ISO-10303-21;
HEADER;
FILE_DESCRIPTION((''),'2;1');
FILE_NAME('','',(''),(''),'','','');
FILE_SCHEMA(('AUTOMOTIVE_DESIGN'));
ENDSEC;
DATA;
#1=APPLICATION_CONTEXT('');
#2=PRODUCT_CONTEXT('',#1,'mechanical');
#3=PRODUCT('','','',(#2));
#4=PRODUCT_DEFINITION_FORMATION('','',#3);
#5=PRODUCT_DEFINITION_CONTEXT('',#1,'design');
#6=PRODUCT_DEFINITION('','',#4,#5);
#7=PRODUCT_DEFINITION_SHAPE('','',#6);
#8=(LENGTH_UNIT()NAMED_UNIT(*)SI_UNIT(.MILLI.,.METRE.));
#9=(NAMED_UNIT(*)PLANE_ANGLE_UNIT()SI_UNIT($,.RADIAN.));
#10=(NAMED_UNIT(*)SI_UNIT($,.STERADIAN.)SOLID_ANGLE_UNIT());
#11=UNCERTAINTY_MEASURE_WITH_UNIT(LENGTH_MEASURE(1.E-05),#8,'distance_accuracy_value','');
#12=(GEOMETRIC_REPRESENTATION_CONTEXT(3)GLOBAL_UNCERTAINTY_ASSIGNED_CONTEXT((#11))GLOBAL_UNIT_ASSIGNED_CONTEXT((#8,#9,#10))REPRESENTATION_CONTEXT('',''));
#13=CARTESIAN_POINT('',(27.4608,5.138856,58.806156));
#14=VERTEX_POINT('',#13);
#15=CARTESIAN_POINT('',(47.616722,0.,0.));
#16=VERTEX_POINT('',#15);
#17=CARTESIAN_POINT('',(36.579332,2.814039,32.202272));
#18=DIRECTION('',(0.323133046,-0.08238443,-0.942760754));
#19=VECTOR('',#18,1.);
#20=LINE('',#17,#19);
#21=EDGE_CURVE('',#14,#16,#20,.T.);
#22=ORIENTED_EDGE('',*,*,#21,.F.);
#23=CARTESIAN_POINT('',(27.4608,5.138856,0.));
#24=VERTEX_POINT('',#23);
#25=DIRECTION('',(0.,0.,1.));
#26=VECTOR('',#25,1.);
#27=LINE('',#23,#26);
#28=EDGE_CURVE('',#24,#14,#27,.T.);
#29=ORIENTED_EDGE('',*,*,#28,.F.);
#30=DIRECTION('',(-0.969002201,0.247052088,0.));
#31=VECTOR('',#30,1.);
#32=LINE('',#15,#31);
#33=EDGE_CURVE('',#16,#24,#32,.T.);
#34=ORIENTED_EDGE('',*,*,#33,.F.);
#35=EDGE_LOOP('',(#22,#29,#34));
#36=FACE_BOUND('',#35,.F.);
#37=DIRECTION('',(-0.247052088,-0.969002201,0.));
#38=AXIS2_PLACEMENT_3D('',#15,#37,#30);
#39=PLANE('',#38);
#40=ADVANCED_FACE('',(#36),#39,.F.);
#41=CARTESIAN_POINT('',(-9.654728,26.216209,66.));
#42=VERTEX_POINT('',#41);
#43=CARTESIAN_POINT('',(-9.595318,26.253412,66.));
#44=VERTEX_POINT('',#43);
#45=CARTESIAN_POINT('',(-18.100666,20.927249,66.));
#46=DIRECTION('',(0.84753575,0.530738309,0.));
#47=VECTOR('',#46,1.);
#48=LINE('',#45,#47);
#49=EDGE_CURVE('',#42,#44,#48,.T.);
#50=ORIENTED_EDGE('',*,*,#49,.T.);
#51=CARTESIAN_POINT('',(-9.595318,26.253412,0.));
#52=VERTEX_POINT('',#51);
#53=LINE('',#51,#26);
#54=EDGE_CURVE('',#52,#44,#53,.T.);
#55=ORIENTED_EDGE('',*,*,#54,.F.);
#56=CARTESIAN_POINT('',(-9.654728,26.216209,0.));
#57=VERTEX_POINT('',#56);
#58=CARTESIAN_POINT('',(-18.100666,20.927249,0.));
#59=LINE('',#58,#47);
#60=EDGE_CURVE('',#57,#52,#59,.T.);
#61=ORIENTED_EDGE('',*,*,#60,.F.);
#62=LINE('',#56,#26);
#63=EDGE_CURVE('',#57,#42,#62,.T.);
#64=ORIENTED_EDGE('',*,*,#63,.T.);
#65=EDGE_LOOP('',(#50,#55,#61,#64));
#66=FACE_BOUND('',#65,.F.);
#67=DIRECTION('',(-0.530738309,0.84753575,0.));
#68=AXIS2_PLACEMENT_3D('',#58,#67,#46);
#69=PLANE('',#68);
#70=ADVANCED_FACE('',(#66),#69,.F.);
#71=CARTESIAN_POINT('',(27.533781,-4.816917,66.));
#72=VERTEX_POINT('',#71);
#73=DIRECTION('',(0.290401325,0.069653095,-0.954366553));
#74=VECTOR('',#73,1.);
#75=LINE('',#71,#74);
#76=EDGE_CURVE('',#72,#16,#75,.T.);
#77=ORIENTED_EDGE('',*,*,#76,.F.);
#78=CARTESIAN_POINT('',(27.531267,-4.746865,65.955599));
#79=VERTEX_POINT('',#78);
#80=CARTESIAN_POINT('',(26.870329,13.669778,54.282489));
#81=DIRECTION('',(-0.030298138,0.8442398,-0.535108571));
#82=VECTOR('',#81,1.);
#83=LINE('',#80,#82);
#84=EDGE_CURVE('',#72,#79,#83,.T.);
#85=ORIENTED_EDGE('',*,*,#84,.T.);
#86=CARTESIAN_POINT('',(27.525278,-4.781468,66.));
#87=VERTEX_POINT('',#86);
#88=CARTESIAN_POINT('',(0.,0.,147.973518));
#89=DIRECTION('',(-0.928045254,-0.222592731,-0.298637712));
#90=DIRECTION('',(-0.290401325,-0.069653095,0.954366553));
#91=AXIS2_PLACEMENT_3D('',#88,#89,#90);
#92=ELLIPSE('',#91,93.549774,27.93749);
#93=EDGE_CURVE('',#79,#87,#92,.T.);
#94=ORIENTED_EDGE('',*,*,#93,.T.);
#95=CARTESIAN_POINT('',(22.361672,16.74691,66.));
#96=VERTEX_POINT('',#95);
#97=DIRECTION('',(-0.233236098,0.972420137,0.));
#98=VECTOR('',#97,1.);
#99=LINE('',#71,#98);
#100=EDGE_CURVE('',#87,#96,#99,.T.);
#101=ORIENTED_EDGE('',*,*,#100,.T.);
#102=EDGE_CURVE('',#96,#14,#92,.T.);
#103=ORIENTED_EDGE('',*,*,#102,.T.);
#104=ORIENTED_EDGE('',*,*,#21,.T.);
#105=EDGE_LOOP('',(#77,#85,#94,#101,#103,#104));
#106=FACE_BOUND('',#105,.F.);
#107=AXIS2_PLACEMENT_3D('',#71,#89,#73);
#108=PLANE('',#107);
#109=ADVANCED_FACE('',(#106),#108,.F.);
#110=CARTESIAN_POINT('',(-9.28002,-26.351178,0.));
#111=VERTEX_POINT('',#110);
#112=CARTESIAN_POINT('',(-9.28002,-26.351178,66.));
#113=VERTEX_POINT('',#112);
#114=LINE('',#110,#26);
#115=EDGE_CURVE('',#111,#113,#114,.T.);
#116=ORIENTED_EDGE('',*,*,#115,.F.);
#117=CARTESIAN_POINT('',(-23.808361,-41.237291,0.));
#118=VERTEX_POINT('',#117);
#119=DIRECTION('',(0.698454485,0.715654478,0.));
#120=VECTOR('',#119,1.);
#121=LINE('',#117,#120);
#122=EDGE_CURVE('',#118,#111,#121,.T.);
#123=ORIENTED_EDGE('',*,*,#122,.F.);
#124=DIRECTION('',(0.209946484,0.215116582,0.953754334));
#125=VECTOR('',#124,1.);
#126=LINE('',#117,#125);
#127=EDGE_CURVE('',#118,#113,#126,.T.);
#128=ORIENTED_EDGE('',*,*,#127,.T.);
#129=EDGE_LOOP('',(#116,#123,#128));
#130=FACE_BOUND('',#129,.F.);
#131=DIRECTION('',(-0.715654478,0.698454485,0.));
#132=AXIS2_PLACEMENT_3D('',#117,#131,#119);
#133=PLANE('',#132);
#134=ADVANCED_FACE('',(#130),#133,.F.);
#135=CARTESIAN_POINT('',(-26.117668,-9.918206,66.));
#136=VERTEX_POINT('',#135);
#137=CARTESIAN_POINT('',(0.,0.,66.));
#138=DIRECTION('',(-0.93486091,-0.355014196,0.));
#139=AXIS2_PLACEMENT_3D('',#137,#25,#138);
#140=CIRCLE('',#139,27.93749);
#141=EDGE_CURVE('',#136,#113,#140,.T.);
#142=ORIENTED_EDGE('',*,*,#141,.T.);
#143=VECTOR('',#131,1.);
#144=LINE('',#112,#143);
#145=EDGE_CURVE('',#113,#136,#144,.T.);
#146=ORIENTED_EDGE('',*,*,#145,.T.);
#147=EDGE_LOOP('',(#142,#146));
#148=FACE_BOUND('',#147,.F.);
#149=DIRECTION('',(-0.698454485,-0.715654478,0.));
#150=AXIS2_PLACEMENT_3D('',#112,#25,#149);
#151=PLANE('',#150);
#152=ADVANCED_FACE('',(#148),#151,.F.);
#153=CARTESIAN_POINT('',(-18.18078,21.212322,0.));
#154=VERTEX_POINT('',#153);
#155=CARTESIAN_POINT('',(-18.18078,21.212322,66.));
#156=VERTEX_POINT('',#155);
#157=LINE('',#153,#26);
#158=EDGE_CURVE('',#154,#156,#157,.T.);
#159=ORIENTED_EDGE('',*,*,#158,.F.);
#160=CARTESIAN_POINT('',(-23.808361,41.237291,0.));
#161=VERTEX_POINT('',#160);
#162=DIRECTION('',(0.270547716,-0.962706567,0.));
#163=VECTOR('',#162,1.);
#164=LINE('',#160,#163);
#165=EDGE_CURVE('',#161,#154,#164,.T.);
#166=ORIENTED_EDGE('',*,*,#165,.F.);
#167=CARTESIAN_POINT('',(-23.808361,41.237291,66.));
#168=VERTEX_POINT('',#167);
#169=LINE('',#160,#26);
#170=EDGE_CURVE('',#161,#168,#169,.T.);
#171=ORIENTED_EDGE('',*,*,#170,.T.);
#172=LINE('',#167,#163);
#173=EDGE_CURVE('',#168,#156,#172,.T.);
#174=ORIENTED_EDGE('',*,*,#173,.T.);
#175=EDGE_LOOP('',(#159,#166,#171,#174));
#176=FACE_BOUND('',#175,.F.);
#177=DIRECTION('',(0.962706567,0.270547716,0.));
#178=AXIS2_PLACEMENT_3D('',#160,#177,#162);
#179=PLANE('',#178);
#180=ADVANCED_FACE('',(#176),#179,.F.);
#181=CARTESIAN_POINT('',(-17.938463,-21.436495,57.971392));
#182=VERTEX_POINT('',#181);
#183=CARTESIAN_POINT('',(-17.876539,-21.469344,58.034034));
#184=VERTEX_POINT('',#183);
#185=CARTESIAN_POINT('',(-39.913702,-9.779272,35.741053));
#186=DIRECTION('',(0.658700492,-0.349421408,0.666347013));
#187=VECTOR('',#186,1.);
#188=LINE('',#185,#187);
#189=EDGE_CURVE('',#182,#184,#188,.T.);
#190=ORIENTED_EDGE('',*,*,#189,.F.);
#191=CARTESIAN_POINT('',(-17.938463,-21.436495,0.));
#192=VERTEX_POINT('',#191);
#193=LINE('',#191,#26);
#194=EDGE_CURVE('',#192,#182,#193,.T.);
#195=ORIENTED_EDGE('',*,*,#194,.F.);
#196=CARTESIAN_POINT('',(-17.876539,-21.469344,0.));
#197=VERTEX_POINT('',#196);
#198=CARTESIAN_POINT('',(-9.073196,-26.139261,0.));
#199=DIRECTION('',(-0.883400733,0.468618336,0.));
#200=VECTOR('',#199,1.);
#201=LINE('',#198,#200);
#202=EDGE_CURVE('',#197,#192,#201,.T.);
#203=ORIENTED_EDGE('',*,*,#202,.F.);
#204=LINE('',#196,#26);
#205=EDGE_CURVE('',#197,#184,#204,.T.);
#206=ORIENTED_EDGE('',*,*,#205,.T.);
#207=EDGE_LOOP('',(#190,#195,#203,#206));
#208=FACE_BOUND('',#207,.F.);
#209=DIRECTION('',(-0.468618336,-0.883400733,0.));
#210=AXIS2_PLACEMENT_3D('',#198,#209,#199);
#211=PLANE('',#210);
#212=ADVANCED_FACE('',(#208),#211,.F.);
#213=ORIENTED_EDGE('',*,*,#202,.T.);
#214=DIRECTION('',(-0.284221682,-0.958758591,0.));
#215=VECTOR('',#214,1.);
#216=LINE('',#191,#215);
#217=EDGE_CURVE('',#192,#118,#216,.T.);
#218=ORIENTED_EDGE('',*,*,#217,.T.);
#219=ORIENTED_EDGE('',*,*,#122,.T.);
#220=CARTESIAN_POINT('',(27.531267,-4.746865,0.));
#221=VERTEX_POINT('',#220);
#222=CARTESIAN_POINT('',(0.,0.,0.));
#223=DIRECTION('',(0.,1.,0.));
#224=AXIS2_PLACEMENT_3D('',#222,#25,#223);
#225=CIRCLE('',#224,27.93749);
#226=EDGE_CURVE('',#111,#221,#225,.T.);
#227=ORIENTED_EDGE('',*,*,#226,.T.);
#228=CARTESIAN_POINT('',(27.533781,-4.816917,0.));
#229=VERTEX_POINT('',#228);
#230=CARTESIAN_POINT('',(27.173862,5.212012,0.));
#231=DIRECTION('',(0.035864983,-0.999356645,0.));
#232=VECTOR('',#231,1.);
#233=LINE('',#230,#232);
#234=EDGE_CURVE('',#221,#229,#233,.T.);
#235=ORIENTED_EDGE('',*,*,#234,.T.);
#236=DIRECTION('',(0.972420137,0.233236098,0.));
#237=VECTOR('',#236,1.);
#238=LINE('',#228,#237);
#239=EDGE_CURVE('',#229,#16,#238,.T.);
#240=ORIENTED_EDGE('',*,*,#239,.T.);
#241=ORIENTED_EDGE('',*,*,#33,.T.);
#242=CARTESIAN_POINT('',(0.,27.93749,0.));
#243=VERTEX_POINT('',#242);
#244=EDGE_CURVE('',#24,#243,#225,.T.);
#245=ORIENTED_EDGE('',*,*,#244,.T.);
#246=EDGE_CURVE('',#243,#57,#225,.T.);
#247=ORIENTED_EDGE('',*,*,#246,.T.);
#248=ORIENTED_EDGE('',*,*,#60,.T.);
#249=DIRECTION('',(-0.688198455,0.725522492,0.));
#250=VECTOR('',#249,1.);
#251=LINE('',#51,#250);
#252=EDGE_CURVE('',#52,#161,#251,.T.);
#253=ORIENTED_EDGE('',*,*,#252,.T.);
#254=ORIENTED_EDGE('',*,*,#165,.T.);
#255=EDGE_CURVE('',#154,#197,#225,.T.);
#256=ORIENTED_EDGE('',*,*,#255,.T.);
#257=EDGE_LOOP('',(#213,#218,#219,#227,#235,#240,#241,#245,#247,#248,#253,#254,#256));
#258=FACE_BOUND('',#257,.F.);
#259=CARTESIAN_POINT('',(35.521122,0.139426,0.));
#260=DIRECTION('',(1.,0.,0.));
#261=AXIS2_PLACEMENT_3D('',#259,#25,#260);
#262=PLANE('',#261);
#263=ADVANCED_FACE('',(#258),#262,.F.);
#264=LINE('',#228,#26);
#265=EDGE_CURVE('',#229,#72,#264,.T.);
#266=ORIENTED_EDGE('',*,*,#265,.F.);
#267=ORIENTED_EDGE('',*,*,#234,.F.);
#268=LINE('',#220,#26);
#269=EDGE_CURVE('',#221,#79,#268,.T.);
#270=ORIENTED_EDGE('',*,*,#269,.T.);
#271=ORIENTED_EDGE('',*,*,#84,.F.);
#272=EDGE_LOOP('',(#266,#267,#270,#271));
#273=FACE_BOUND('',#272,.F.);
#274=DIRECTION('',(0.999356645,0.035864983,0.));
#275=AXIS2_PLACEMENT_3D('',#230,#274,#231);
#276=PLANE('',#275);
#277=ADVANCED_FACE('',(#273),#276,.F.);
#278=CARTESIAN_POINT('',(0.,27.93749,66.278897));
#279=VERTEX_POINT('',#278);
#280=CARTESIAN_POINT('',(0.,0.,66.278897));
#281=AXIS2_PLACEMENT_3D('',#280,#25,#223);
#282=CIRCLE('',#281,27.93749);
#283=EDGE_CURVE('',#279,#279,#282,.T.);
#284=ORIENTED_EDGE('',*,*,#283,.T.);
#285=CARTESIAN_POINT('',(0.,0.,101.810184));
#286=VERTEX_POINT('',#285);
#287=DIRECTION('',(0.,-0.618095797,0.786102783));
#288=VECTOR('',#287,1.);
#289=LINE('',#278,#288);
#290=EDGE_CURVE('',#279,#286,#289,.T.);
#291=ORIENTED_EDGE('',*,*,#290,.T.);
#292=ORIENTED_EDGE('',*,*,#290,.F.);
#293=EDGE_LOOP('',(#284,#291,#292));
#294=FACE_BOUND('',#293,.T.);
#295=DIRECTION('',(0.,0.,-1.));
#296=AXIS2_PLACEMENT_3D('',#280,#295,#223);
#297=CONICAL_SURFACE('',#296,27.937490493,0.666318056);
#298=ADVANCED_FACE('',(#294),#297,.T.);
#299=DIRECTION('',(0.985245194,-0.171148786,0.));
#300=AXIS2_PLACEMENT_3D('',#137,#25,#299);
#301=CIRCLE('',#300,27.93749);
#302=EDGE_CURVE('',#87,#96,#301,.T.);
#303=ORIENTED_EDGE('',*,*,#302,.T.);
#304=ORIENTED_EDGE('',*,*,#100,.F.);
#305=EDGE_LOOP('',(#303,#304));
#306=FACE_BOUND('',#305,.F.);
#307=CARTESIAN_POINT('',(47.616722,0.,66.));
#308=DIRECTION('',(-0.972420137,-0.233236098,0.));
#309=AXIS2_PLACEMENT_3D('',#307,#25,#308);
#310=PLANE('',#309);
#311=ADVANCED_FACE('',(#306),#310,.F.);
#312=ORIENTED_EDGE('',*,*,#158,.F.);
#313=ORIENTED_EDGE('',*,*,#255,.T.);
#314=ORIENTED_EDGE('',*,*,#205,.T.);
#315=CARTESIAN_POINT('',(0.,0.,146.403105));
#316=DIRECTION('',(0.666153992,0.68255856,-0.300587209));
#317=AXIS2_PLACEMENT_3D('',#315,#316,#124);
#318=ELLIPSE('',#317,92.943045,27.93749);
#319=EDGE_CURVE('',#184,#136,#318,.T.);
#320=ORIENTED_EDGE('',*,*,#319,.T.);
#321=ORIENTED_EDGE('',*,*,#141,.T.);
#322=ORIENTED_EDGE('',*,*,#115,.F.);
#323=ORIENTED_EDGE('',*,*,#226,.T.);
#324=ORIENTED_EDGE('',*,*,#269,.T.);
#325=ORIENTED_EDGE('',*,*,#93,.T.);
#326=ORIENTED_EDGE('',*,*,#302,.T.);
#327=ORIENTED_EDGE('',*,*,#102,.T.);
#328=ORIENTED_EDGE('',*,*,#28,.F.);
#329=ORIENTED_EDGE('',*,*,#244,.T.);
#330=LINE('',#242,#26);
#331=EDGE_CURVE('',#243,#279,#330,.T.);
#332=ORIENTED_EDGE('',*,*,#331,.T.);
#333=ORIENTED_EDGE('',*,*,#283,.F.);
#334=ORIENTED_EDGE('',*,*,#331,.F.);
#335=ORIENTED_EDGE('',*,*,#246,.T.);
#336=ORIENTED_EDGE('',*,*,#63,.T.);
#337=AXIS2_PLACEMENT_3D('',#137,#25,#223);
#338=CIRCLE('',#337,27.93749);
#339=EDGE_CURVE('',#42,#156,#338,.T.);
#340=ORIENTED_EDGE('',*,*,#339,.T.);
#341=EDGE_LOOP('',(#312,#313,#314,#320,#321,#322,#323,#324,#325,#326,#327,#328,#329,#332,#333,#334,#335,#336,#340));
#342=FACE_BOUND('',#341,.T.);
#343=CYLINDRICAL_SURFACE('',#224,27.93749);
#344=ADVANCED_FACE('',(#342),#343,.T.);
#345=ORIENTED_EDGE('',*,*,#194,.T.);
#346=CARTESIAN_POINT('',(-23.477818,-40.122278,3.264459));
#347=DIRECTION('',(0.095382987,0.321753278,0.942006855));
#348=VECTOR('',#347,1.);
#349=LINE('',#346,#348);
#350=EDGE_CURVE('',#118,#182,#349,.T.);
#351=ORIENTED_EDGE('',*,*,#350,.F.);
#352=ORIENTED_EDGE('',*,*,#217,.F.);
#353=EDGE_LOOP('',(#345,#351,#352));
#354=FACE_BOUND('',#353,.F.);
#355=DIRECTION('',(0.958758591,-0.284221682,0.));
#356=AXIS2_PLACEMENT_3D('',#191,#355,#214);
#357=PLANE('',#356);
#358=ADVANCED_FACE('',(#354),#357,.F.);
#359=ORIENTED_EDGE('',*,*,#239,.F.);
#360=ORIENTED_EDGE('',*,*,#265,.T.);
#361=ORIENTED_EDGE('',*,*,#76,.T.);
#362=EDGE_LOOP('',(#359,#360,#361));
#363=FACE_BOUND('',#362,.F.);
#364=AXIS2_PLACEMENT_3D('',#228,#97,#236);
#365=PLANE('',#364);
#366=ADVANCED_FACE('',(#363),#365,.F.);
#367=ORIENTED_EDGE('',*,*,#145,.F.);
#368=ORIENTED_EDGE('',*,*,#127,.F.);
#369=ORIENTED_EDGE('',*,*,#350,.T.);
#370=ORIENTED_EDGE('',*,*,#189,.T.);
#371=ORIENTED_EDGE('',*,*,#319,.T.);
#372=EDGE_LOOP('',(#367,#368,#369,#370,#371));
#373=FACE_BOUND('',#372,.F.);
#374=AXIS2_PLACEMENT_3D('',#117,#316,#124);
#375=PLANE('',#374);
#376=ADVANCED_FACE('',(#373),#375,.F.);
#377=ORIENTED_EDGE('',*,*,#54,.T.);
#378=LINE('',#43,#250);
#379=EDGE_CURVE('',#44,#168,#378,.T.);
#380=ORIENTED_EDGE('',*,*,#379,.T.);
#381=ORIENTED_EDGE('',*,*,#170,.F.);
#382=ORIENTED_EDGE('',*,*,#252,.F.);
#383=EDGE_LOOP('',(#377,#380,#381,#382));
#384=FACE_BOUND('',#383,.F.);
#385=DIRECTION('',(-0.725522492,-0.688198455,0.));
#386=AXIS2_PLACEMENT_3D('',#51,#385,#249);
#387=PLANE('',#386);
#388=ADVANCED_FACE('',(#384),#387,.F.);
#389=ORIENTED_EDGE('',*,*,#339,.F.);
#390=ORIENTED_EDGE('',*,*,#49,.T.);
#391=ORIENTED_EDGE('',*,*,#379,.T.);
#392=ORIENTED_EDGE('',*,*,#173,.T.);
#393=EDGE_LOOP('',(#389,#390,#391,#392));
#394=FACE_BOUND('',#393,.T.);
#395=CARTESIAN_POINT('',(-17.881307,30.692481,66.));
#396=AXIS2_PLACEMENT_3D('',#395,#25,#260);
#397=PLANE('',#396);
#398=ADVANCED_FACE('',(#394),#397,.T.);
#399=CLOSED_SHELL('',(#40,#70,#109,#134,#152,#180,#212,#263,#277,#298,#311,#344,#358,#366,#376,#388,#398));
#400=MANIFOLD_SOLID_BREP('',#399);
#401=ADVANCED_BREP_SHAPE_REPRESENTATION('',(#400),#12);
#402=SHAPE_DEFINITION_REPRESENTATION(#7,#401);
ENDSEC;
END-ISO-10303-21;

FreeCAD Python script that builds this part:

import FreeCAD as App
import Part
import Sketcher
Q = App.Units.Quantity


def add_polygon(sketch, points):
    """Adds a closed chain of lines whose ends are joined by coincident constraints."""
    first, n = sketch.GeometryCount, len(points)
    for a, b in zip(points, points[1:] + points[:1]):
        sketch.addGeometry(Part.LineSegment(App.Vector(*a, 0), App.Vector(*b, 0)), False)
    for i in range(n):
        sketch.addConstraint(Sketcher.Constraint("Coincident", first + i, 2, first + (i + 1) % n, 1))

doc = App.newDocument("Part")
params = doc.addObject("Spreadsheet::Sheet", "Params")
for row, (alias, value) in enumerate([
    ("revolution_angle", "360 deg"),
    ("pad1_length", "66 mm"),
    ("sketch3_height", "66 mm"),
    ("pocket1_length", "25 mm"),
    ("sketch4_height", "66 mm"),
    ("pocket2_length", "25 mm"),
], start=1):
    params.set(f"A{row}", alias)
    params.set(f"B{row}", "=" + value)
    params.setAlias(f"B{row}", alias)

body = doc.addObject("PartDesign::Body", "Body")

# Sketch on YZ plane
sketch1 = doc.addObject("Sketcher::SketchObject", "Sketch")
body.addObject(sketch1)
sketch1.AttachmentSupport = (doc.YZ_Plane, [""])
sketch1.MapMode = "FlatFace"
add_polygon(sketch1, [(28, 66), (0, 102), (0, 0), (28, 0)])  # lines 0-3
sketch1.addConstraint(Sketcher.Constraint("Vertical", 1))
sketch1.addConstraint(Sketcher.Constraint("Horizontal", 2))
sketch1.addConstraint(Sketcher.Constraint("Vertical", 3))
sketch1.addConstraint(Sketcher.Constraint("Coincident", 1, 2, -1, 1))
sketch1.addConstraint(Sketcher.Constraint("DistanceX", 2, 1, 2, 2, Q("27.93749 mm")))
sketch1.addConstraint(Sketcher.Constraint("Distance", 0, Q("45.199289 mm")))
sketch1.addConstraint(Sketcher.Constraint("DistanceY", 1, 2, 1, 1, Q("101.810184 mm")))
revolution = doc.addObject("PartDesign::Revolution", "Revolution")
body.addObject(revolution)
revolution.Profile = sketch1
revolution.ReferenceAxis = (sketch1, ["V_Axis"])
revolution.setExpression("Angle", "Params.revolution_angle")

# Sketch on XY plane
sketch2 = doc.addObject("Sketcher::SketchObject", "Sketch001")
body.addObject(sketch2)
sketch2.AttachmentSupport = (doc.XY_Plane, [""])
sketch2.MapMode = "FlatFace"
add_polygon(sketch2, [(48, 0), (27, 5), (28, -5)])  # lines 0-2
add_polygon(sketch2, [(-10, 26), (-24, 41), (-18, 21)])  # lines 3-5
add_polygon(sketch2, [(-18, -21), (-24, -41), (-9, -26)])  # lines 6-8
sketch2.addConstraint(Sketcher.Constraint("Symmetric", 3, 2, 6, 2, -1))
sketch2.addConstraint(Sketcher.Constraint("PointOnObject", 2, 2, -1))
sketch2.addConstraint(Sketcher.Constraint("Equal", 2, 3))
sketch2.addConstraint(Sketcher.Constraint("Equal", 0, 4))
sketch2.addConstraint(Sketcher.Constraint("Equal", 1, 5))
sketch2.addConstraint(Sketcher.Constraint("Equal", 3, 6))
sketch2.addConstraint(Sketcher.Constraint("Equal", 4, 7))
sketch2.addConstraint(Sketcher.Constraint("Equal", 5, 8))
sketch2.addConstraint(Sketcher.Constraint("DistanceY", 0, 2, 5, 2, Q("21.0414 mm")))
sketch2.addConstraint(Sketcher.Constraint("DistanceX", 5, 2, 1, 2, Q("37.129099 mm")))
sketch2.addConstraint(Sketcher.Constraint("DistanceX", 6, 2, 8, 2, Q("5.869898 mm")))
sketch2.addConstraint(Sketcher.Constraint("DistanceX", -1, 1, 0, 2, Q("27.173862 mm")))
sketch2.addConstraint(Sketcher.Constraint("DistanceX", -1, 1, 1, 2, Q("27.533781 mm")))
sketch2.addConstraint(Sketcher.Constraint("DistanceX", 3, 2, -1, 1, Q("23.808361 mm")))
sketch2.addConstraint(Sketcher.Constraint("DistanceY", -1, 1, 3, 2, Q("41.237291 mm")))
sketch2.addConstraint(Sketcher.Constraint("DistanceY", -1, 1, 4, 2, Q("20.927249 mm")))
sketch2.addConstraint(Sketcher.Constraint("DistanceY", 7, 2, -1, 1, Q("26.139261 mm")))
pad1 = doc.addObject("PartDesign::Pad", "Pad")
body.addObject(pad1)
pad1.Profile = sketch2
pad1.setExpression("Length", "Params.pad1_length")

# Sketch on an angled plane
sketch3 = doc.addObject("Sketcher::SketchObject", "Sketch002")
body.addObject(sketch3)
sketch3.Placement = App.Placement(App.Vector(2.590306, -10.799638, 0), App.Rotation(App.Vector(0.972420137, 0.233236098, 0), App.Vector(0, 0, 1), App.Vector(0.233236098, -0.972420137, 0), "ZXY"))
add_polygon(sketch3, [(46, 66), (26, 66), (46, 0)])  # lines 0-2
sketch3.addConstraint(Sketcher.Constraint("Horizontal", 0))
sketch3.addConstraint(Sketcher.Constraint("Vertical", 2))
sketch3.addConstraint(Sketcher.Constraint("PointOnObject", 1, 2, -1))
sketch3.addConstraint(Sketcher.Constraint("DistanceY", 2, 1, 2, 2, Q("66 mm")))
sketch3.addConstraint(Sketcher.Constraint("Distance", 1, Q("69.155818 mm")))
sketch3.addConstraint(Sketcher.Constraint("DistanceX", -1, 1, 1, 2, Q("46.303459 mm")))
sketch3.setExpression("Constraints[6]", "Params.sketch3_height")
pocket1 = doc.addObject("PartDesign::Pocket", "Pocket")
body.addObject(pocket1)
pocket1.Profile = sketch3
pocket1.setExpression("Length", "Params.pocket1_length")

# Sketch on an angled plane
sketch4 = doc.addObject("Sketcher::SketchObject", "Sketch003")
body.addObject(sketch4)
sketch4.Placement = App.Placement(App.Vector(8.418824, -8.216486, 0), App.Rotation(App.Vector(0.698454485, 0.715654478, 0), App.Vector(0, 0, 0.999999999), App.Vector(0.715654478, -0.698454485, 0), "ZXY"))
add_polygon(sketch4, [(-46, 66), (-46, 0), (-25, 66)])  # lines 0-2
sketch4.addConstraint(Sketcher.Constraint("Vertical", 0))
sketch4.addConstraint(Sketcher.Constraint("Horizontal", 2))
sketch4.addConstraint(Sketcher.Constraint("PointOnObject", 0, 2, -1))
sketch4.addConstraint(Sketcher.Constraint("DistanceY", 0, 2, 0, 1, Q("66 mm")))
sketch4.addConstraint(Sketcher.Constraint("Distance", 1, Q("69.20021 mm")))
sketch4.addConstraint(Sketcher.Constraint("DistanceX", 0, 2, -1, 1, Q("46.140708 mm")))
sketch4.setExpression("Constraints[6]", "Params.sketch4_height")
pocket2 = doc.addObject("PartDesign::Pocket", "Pocket001")
body.addObject(pocket2)
pocket2.Profile = sketch4
pocket2.setExpression("Length", "Params.pocket2_length")

doc.recompute()
